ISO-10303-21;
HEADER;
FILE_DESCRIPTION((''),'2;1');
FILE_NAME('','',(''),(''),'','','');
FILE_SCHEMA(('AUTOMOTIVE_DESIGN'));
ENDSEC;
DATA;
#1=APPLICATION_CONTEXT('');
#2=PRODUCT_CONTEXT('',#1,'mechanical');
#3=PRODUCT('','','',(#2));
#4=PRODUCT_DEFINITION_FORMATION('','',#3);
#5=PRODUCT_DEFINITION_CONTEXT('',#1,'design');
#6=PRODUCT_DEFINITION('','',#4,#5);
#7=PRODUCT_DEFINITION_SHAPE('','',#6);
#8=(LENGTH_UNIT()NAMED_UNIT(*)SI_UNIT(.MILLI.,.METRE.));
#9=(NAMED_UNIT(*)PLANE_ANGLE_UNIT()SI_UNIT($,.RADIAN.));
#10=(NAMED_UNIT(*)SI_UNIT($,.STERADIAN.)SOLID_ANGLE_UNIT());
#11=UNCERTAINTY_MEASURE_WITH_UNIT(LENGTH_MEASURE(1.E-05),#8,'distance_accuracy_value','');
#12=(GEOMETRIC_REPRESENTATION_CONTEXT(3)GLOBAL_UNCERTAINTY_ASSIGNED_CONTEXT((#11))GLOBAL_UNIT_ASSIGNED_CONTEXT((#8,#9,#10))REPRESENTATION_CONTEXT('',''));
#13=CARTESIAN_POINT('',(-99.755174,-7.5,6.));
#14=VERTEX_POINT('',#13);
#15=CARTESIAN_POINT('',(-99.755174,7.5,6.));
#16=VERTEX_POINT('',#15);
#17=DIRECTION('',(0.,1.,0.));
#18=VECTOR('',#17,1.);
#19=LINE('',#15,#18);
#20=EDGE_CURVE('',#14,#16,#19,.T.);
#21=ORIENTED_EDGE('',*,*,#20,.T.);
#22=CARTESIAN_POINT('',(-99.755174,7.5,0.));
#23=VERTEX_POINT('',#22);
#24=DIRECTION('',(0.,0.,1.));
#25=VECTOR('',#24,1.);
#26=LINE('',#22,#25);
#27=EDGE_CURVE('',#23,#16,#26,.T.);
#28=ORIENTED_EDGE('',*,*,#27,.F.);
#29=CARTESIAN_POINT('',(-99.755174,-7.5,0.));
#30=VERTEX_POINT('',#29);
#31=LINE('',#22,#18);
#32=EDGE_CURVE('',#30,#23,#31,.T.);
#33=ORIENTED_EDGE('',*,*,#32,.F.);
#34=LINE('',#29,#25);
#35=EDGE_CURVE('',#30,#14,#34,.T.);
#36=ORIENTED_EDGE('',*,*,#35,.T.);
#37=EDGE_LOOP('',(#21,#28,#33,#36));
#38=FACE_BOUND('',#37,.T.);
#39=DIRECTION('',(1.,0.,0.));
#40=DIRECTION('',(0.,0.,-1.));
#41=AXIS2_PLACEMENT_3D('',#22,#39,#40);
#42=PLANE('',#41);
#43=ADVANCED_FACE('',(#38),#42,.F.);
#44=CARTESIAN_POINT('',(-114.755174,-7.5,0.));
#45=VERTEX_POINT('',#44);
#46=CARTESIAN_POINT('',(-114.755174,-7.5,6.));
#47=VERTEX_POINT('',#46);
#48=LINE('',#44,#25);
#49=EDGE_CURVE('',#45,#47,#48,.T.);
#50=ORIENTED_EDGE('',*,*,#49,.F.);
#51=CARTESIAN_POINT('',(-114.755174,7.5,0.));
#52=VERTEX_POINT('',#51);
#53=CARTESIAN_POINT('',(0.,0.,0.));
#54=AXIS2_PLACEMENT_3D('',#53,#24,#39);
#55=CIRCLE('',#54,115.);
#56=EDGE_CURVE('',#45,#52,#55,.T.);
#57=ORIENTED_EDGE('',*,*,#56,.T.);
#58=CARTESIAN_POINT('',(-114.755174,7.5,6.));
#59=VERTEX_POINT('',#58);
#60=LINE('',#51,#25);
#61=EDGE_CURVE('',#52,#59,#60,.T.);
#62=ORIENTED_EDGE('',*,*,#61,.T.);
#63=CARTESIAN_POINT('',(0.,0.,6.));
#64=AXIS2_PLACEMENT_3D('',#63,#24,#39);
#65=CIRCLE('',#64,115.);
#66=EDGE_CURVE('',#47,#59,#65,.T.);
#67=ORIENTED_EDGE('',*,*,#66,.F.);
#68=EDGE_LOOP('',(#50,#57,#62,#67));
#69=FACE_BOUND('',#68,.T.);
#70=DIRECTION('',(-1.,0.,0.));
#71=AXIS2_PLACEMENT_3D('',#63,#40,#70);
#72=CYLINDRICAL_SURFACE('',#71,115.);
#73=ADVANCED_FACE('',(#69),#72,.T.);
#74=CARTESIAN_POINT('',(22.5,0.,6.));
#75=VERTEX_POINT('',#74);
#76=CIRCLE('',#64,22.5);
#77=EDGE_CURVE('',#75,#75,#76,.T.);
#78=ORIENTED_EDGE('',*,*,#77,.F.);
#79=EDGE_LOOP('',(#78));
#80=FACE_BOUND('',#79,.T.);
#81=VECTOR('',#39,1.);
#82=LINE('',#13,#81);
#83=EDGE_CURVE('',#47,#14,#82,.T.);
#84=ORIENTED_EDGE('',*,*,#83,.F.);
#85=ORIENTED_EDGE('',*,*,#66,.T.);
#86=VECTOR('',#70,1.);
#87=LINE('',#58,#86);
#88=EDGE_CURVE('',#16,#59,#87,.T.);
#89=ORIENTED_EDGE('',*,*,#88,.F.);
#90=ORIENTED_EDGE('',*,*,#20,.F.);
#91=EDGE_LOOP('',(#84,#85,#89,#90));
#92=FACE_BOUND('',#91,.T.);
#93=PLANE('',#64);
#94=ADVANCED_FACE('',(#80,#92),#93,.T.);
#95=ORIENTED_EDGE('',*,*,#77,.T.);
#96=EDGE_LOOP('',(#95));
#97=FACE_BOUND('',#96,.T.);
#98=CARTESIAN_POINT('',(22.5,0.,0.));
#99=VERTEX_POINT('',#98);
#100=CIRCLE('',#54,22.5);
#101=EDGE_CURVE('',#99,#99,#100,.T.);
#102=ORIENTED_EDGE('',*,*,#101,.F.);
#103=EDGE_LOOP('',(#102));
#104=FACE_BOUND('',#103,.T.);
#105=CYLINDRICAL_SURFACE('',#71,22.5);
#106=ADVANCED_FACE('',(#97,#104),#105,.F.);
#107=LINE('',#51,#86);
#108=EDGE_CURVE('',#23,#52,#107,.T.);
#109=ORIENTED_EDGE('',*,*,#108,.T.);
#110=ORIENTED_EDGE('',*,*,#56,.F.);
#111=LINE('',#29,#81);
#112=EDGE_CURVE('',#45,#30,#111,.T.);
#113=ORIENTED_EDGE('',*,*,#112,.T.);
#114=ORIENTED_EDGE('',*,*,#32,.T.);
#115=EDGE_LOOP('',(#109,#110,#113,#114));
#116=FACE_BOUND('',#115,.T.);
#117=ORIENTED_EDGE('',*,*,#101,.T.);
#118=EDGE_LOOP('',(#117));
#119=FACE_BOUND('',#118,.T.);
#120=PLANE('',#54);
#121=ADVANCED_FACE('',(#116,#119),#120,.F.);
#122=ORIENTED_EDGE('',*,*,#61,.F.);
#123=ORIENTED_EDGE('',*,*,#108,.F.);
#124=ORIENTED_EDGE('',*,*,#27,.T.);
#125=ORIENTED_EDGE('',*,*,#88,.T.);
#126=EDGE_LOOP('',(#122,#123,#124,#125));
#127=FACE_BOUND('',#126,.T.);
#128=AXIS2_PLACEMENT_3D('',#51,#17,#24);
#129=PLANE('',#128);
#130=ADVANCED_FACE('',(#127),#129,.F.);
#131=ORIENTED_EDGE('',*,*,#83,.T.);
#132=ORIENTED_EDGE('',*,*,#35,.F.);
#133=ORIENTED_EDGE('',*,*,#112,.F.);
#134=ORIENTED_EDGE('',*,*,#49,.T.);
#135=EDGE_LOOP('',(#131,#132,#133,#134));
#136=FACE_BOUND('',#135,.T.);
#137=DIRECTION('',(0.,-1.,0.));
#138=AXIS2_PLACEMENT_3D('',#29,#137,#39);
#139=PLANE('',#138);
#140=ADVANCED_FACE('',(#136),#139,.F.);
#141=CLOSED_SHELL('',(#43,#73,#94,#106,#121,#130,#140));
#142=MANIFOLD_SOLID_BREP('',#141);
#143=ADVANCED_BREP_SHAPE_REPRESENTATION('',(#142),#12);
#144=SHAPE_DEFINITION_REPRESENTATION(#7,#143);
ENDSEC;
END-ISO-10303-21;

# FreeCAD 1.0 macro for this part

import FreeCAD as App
import Part
import Sketcher
from FreeCAD import Vector


def add_polygon(sketch, points):
    """Adds a closed chain of lines whose ends are joined by coincident constraints."""
    first, n = sketch.GeometryCount, len(points)
    for a, b in zip(points, points[1:] + points[:1]):
        sketch.addGeometry(Part.LineSegment(App.Vector(*a, 0), App.Vector(*b, 0)), False)
    for i in range(n):
        sketch.addConstraint(Sketcher.Constraint("Coincident", first + i, 2, first + (i + 1) % n, 1))

doc = App.newDocument("Part")
body = doc.addObject("PartDesign::Body", "Body")

# Sketch on XY plane
sketch1 = body.newObject("Sketcher::SketchObject", "Sketch")
sketch1.AttachmentSupport = (doc.getObject("XY_Plane"), [""])
sketch1.MapMode = "FlatFace"
sketch1.addGeometry([
    Part.Circle(Vector(0, 0, 0), Vector(0, 0, 1), 115),
    Part.Circle(Vector(0, 0, 0), Vector(0, 0, 1), 22),
], False)
sketch1.addConstraint([
    Sketcher.Constraint("Coincident", 0, 3, -1, 1),
    Sketcher.Constraint("Coincident", 1, 3, -1, 1),
    Sketcher.Constraint("Diameter", 0, 230.0),
    Sketcher.Constraint("Diameter", 1, 45.0),
])
pad1 = body.newObject("PartDesign::Pad", "Pad")
pad1.Profile = sketch1
pad1.Length = 6

# Sketch on XY plane
sketch2 = body.newObject("Sketcher::SketchObject", "Sketch001")
sketch2.AttachmentSupport = (doc.getObject("XY_Plane"), [""])
sketch2.MapMode = "FlatFace"
sketch2.AttachmentOffset = App.Placement(Vector(0, 0, 6), App.Rotation())
add_polygon(sketch2, [(-100, 8), (-115, 8), (-127, 0), (-115, -8), (-100, -8)])  # lines 0-4
sketch2.addConstraint([
    Sketcher.Constraint("Horizontal", 0),
    Sketcher.Constraint("Horizontal", 3),
    Sketcher.Constraint("Vertical", 4),
    Sketcher.Constraint("Symmetric", 0, 2, 2, 2, -1),
    Sketcher.Constraint("PointOnObject", 1, 2, -1),
    Sketcher.Constraint("Equal", 3, 4),
    Sketcher.Constraint("DistanceX", 0, 2, 0, 1, 15.0),
    Sketcher.Constraint("DistanceX", 1, 2, -1, 1, 126.610712),
    Sketcher.Constraint("Distance", 1, 14.028677),
])
pocket1 = body.newObject("PartDesign::Pocket", "Pocket")
pocket1.Profile = sketch2
pocket1.Length = 6

doc.recompute()
